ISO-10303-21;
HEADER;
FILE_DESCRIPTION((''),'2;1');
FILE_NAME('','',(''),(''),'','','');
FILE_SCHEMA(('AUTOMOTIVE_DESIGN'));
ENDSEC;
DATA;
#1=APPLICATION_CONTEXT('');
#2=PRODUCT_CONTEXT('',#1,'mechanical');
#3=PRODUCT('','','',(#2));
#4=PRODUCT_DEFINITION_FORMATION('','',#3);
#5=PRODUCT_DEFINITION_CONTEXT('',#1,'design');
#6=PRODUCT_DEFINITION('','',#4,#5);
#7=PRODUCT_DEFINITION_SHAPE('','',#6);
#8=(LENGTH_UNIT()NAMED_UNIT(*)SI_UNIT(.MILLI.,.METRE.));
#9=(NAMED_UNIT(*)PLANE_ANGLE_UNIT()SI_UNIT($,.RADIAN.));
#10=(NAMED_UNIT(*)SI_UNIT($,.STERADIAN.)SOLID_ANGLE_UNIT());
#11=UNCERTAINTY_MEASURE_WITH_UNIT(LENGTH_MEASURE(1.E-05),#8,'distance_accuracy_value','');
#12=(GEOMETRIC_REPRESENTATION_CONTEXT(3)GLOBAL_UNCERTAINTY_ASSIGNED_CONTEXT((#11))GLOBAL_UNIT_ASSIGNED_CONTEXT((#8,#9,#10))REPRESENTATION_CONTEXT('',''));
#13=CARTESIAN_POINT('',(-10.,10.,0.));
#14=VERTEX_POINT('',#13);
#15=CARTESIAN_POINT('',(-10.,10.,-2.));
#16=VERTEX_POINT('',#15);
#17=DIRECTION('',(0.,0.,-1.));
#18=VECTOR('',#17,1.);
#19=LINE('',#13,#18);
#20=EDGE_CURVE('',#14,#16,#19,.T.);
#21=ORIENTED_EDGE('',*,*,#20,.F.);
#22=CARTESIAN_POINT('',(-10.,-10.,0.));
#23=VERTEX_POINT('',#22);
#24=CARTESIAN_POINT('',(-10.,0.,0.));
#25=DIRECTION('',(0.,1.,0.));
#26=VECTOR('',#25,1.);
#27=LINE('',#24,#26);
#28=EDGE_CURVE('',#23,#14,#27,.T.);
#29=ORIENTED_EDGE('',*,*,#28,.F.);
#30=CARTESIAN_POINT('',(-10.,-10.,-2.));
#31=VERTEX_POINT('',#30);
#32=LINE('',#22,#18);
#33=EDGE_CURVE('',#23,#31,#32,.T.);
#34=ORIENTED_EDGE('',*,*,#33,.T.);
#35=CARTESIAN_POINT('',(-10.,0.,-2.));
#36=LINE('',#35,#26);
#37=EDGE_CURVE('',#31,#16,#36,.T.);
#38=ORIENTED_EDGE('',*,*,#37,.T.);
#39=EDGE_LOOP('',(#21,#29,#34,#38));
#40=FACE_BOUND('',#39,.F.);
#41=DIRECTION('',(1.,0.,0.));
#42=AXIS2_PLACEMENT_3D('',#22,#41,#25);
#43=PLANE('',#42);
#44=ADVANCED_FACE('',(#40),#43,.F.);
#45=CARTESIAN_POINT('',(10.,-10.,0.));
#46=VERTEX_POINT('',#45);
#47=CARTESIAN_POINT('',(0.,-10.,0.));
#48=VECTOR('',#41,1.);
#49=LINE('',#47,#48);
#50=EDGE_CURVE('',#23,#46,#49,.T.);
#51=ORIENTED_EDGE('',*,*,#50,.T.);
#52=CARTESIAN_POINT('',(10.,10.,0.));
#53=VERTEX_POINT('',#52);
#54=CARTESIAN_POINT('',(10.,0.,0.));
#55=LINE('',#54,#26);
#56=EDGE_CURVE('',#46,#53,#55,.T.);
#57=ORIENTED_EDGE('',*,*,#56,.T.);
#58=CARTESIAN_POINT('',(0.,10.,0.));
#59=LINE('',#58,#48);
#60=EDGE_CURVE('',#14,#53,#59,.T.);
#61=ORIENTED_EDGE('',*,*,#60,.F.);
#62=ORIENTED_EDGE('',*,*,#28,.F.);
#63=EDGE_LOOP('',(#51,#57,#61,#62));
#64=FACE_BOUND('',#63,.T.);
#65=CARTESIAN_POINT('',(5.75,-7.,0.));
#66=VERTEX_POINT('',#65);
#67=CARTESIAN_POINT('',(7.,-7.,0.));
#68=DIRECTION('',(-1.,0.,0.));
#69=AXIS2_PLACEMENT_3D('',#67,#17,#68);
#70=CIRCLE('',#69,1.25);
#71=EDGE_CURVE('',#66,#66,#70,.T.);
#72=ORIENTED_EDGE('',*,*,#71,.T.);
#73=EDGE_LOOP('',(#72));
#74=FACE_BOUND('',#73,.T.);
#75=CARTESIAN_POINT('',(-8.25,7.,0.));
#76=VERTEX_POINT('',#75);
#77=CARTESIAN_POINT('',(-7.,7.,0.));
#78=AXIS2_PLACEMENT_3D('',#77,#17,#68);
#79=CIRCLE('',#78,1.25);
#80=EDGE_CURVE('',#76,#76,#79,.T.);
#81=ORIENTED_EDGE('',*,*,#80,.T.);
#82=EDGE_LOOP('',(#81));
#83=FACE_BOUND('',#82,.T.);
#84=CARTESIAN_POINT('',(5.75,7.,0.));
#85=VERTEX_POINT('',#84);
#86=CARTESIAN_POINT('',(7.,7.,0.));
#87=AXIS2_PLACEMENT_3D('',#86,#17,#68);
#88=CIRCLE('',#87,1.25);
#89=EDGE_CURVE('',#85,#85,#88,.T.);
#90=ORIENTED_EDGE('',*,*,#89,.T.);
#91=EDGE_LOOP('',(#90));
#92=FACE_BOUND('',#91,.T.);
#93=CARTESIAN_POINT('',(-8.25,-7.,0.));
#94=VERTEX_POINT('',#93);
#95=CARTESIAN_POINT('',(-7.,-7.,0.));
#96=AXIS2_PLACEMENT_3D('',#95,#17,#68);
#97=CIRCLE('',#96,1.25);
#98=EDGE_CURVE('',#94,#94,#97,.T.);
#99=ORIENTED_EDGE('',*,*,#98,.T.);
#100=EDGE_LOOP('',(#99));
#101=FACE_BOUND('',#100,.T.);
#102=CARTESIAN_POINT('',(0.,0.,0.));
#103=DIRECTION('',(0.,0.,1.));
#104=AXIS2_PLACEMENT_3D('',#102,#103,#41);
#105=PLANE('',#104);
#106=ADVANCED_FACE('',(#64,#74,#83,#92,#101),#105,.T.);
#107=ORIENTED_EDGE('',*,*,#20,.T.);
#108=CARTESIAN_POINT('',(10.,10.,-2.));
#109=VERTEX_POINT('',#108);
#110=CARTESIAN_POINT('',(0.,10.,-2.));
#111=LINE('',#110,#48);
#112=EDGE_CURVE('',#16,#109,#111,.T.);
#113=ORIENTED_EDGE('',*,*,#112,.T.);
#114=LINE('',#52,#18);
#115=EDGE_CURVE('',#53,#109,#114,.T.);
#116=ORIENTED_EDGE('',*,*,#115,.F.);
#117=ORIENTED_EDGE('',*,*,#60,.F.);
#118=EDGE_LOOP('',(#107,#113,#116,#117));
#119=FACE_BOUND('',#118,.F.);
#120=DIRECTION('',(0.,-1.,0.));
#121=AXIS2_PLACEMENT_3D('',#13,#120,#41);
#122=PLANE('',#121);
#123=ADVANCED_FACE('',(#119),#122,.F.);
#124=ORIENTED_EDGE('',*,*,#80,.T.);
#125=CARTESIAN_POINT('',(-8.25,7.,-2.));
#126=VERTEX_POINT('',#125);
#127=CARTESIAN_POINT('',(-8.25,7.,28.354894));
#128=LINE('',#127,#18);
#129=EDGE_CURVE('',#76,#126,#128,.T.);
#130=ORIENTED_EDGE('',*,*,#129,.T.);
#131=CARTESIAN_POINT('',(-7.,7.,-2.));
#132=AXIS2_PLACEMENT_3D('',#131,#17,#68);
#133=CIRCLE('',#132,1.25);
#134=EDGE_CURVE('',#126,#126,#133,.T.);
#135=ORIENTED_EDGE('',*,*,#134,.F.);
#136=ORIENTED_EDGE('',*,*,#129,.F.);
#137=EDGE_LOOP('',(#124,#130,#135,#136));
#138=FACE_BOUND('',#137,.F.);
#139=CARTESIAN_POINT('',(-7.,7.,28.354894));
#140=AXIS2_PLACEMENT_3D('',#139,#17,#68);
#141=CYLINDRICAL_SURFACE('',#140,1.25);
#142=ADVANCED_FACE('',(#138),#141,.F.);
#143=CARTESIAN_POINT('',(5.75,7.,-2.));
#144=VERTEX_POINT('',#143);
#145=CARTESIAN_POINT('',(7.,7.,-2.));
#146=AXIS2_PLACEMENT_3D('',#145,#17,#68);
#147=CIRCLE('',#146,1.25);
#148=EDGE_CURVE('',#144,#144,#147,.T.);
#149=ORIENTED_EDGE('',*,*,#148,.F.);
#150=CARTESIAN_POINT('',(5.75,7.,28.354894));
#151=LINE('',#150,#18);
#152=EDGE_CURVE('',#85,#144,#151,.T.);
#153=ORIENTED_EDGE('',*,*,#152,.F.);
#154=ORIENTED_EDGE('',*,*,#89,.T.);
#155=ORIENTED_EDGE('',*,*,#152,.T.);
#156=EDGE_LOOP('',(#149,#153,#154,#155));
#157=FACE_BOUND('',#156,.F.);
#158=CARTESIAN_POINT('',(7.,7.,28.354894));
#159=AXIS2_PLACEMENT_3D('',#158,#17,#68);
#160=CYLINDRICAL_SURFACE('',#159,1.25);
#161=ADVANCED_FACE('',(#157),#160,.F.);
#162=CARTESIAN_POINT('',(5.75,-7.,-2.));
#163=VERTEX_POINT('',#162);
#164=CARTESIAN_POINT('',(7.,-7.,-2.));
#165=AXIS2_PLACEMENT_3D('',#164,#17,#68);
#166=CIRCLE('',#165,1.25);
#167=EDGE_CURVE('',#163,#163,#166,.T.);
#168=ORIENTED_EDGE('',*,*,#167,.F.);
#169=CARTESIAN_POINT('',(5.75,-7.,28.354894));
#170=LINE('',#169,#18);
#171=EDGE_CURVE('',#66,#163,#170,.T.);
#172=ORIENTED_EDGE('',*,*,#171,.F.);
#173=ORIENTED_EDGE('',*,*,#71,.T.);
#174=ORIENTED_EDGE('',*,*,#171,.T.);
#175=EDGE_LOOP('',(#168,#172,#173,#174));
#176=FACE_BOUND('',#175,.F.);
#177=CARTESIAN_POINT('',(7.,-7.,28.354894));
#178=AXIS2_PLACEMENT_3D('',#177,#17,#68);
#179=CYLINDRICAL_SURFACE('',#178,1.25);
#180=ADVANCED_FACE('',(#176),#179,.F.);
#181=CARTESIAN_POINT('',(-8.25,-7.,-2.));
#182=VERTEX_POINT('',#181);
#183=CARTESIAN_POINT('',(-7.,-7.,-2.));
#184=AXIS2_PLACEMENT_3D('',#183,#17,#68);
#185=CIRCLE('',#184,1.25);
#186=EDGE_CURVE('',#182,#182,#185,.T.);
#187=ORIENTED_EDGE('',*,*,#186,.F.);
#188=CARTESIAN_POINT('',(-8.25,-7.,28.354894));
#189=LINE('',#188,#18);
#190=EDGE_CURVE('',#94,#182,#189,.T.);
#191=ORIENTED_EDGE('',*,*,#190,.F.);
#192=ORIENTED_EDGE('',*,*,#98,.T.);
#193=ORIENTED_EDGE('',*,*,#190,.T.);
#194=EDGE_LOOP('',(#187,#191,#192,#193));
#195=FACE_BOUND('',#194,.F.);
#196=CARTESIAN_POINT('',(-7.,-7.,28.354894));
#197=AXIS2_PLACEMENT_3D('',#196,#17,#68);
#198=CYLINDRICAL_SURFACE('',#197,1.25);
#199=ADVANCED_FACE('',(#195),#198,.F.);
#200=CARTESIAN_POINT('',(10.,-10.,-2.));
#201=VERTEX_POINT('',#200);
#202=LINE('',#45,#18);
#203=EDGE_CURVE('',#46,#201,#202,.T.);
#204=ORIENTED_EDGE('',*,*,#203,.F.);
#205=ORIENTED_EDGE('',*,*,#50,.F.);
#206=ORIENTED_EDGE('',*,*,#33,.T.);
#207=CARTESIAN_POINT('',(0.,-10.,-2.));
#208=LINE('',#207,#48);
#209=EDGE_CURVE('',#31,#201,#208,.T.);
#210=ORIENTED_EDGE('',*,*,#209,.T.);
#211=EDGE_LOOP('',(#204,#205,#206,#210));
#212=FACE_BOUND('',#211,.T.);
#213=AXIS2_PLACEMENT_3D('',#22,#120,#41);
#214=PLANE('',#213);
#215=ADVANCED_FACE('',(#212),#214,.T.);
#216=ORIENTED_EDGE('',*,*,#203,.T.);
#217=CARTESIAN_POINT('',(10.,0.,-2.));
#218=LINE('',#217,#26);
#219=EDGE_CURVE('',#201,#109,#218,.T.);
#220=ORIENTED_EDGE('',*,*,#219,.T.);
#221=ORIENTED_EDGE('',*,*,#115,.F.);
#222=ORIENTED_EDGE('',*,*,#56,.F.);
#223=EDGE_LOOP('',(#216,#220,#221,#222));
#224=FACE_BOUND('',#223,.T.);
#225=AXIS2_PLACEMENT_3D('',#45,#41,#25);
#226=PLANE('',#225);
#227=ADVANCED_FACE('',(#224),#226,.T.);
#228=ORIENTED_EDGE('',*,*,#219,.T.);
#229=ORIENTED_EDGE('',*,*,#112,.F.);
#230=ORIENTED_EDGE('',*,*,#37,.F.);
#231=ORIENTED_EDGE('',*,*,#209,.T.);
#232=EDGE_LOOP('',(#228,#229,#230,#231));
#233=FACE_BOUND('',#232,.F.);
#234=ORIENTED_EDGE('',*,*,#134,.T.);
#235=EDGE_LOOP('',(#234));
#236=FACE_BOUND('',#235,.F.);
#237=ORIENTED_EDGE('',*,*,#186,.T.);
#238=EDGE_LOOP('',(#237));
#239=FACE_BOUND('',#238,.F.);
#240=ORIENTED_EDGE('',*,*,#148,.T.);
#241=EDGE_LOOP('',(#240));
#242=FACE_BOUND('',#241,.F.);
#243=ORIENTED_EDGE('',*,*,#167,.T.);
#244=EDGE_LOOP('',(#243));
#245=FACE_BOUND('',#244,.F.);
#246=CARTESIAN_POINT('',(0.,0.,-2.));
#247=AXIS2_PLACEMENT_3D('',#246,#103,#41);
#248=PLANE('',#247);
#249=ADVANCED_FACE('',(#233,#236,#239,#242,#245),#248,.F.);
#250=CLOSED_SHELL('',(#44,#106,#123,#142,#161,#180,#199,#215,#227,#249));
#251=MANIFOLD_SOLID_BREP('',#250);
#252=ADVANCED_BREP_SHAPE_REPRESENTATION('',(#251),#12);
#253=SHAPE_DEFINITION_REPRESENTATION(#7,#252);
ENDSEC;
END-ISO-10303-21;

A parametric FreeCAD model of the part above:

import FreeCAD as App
import Part
import Sketcher

doc = App.newDocument("Part")
body = doc.addObject("PartDesign::Body", "Body")

# Sketch on XY plane
sketch1 = body.newObject("Sketcher::SketchObject", "Sketch")
sketch1.AttachmentSupport = (doc.getObject("XY_Plane"), [""])
sketch1.MapMode = "FlatFace"
sketch1.addGeometry([
    Part.LineSegment(App.Vector(-10, 10, 0), App.Vector(-10, -10, 0)),
    Part.LineSegment(App.Vector(-10, -10, 0), App.Vector(10, -10, 0)),
    Part.LineSegment(App.Vector(10, -10, 0), App.Vector(10, 10, 0)),
    Part.LineSegment(App.Vector(10, 10, 0), App.Vector(-10, 10, 0)),
], False)
sketch1.addConstraint([
    Sketcher.Constraint("Coincident", 0, 2, 1, 1),
    Sketcher.Constraint("Coincident", 1, 2, 2, 1),
    Sketcher.Constraint("Coincident", 2, 2, 3, 1),
    Sketcher.Constraint("Coincident", 3, 2, 0, 1),
    Sketcher.Constraint("Vertical", 0),
    Sketcher.Constraint("Horizontal", 1),
    Sketcher.Constraint("Vertical", 2),
    Sketcher.Constraint("Horizontal", 3),
    Sketcher.Constraint("Symmetric", 0, 2, 2, 2, -1, 1),
    Sketcher.Constraint("Equal", 3, 0),
    Sketcher.Constraint("DistanceX", 1, 1, 1, 2, 20.0),
])
pad1 = body.newObject("PartDesign::Pad", "Pad")
pad1.Profile = sketch1
pad1.Length = 2
pad1.Reversed = True

# Sketch on XY plane
sketch2 = body.newObject("Sketcher::SketchObject", "Sketch001")
sketch2.AttachmentSupport = (doc.getObject("XY_Plane"), [""])
sketch2.MapMode = "FlatFace"
sketch2.addGeometry([
    Part.Circle(App.Vector(-7, 7, 0), App.Vector(0, 0, 1), 1.25),
    Part.Circle(App.Vector(7, 7, 0), App.Vector(0, 0, 1), 1.25),
    Part.Circle(App.Vector(-7, -7, 0), App.Vector(0, 0, 1), 1.25),
    Part.Circle(App.Vector(7, -7, 0), App.Vector(0, 0, 1), 1.25),
], False)
sketch2.addConstraint([
    Sketcher.Constraint("Equal", 0, 1),
    Sketcher.Constraint("Equal", 1, 2),
    Sketcher.Constraint("Equal", 2, 3),
    Sketcher.Constraint("Symmetric", 1, 3, 2, 3, -1, 1),
    Sketcher.Constraint("Symmetric", 0, 3, 3, 3, -1, 1),
    Sketcher.Constraint("Symmetric", 0, 3, 1, 3, -2),
    Sketcher.Constraint("Diameter", 0, 2.5),
    Sketcher.Constraint("DistanceX", 0, 3, -1, 1, 7.0),
    Sketcher.Constraint("DistanceY", -1, 1, 0, 3, 7.0),
])
doc.recompute()
hole = body.newObject("PartDesign::Hole", "Hole")
hole.Profile = sketch2
hole.ThreadType = "None"
hole.Diameter = 2.5
hole.DepthType = "ThroughAll"

doc.recompute()
